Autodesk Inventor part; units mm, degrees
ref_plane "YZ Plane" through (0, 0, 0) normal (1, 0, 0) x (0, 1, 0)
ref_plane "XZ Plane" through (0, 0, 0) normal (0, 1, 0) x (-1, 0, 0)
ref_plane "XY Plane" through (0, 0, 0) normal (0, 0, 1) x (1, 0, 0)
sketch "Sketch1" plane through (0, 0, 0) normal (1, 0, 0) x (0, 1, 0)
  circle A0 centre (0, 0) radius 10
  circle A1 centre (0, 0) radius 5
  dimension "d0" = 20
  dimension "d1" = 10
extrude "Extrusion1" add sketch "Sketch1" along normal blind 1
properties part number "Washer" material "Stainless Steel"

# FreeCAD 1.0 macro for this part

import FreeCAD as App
import Part
import Sketcher

doc = App.newDocument("Part")
params = doc.addObject("Spreadsheet::Sheet", "Params")
for row, (alias, value) in enumerate([
    ("sketch1_diameter", "20 mm"),
    ("sketch1_diameter2", "10 mm"),
    ("pad1_length", "1 mm"),
], start=1):
    params.set(f"A{row}", alias)
    params.set(f"B{row}", "=" + value)
    params.setAlias(f"B{row}", alias)

body = doc.addObject("PartDesign::Body", "Body")

# Sketch on YZ plane
sketch1 = body.newObject("Sketcher::SketchObject", "Sketch")
sketch1.AttachmentSupport = (doc.getObject("YZ_Plane"), [""])
sketch1.MapMode = "FlatFace"
sketch1.addGeometry(Part.Circle(App.Vector(0, 0, 0), App.Vector(0, 0, 1), 10), False)
sketch1.addGeometry(Part.Circle(App.Vector(0, 0, 0), App.Vector(0, 0, 1), 5), False)
sketch1.addConstraint(Sketcher.Constraint("Coincident", 0, 3, -1, 1))
sketch1.addConstraint(Sketcher.Constraint("Coincident", 1, 3, -1, 1))
sketch1.addConstraint(Sketcher.Constraint("Diameter", 0, 20.0))
sketch1.addConstraint(Sketcher.Constraint("Diameter", 1, 10.0))
sketch1.setExpression("Constraints[2]", "Params.sketch1_diameter")
sketch1.setExpression("Constraints[3]", "Params.sketch1_diameter2")
pad1 = body.newObject("PartDesign::Pad", "Pad")
pad1.Profile = sketch1
pad1.setExpression("Length", "Params.pad1_length")

doc.recompute()
